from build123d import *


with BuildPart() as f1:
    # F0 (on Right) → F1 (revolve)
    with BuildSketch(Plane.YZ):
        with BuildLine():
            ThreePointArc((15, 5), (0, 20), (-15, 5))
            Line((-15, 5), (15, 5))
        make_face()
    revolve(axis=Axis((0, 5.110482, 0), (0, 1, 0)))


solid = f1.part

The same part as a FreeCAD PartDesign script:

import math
import FreeCAD as App
import Part
import Sketcher

V = App.Vector
Q = App.Units.Quantity

doc = App.newDocument("Part")
body = doc.addObject("PartDesign::Body", "Body")

# Sketch on YZ plane
sketch1 = doc.addObject("Sketcher::SketchObject", "Sketch")
body.addObject(sketch1)
sketch1.AttachmentSupport = (doc.YZ_Plane, [""])
sketch1.MapMode = "FlatFace"
sketch1.addGeometry([
    Part.ArcOfCircle(Part.Circle(V(0, 5, 0), V(0, 0, 1), 15), math.radians(0), math.radians(180)),
    Part.LineSegment(V(-15, 5, 0), V(15, 5, 0)),
], False)
sketch1.addConstraint([
    Sketcher.Constraint("Coincident", 0, 1, 1, 2),
    Sketcher.Constraint("Coincident", 1, 1, 0, 2),
    Sketcher.Constraint("Horizontal", 1),
    Sketcher.Constraint("PointOnObject", 0, 3, -2),
    Sketcher.Constraint("Radius", 0, Q("15 mm")),
    Sketcher.Constraint("DistanceY", -1, 1, 0, 3, Q("5 mm")),
    Sketcher.Constraint("DistanceY", -1, 1, 0, 1, Q("5 mm")),
])
revolution = doc.addObject("PartDesign::Revolution", "Revolution")
body.addObject(revolution)
revolution.Profile = sketch1
revolution.ReferenceAxis = (sketch1, ["H_Axis"])
revolution.Angle = 360

doc.recompute()
